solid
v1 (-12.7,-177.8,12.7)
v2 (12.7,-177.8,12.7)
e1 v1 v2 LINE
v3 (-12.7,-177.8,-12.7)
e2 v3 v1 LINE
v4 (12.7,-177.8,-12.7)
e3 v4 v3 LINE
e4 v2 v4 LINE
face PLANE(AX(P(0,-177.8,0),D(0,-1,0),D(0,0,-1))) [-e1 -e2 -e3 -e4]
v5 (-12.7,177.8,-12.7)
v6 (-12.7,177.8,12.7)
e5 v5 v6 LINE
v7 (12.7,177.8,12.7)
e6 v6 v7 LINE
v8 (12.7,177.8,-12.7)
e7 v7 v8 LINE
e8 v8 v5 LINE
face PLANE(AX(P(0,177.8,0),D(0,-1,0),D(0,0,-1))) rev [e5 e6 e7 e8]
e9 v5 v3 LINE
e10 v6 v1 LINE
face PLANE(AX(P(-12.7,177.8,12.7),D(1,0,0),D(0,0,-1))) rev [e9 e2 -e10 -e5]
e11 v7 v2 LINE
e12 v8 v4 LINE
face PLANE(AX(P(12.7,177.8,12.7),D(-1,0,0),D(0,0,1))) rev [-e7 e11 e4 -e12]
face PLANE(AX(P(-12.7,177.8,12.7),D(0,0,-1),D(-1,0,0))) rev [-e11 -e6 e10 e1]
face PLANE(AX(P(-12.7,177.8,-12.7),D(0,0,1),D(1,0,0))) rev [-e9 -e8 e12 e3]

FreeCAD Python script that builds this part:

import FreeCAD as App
import Part
import Sketcher
from FreeCAD import Vector
Q = App.Units.Quantity

doc = App.newDocument("Part")
body = doc.addObject("PartDesign::Body", "Body")

# Sketch on XZ plane
sketch1 = doc.addObject("Sketcher::SketchObject", "Sketch")
body.addObject(sketch1)
sketch1.AttachmentSupport = (doc.XZ_Plane, [""])
sketch1.MapMode = "FlatFace"
sketch1.addGeometry([
    Part.LineSegment(Vector(-13, -13, 0), Vector(-13, 13, 0)),
    Part.LineSegment(Vector(-13, 13, 0), Vector(13, 13, 0)),
    Part.LineSegment(Vector(13, 13, 0), Vector(13, -13, 0)),
    Part.LineSegment(Vector(13, -13, 0), Vector(-13, -13, 0)),
], False)
sketch1.addConstraint([
    Sketcher.Constraint("Coincident", 0, 2, 1, 1),
    Sketcher.Constraint("Coincident", 1, 2, 2, 1),
    Sketcher.Constraint("Coincident", 2, 2, 3, 1),
    Sketcher.Constraint("Coincident", 3, 2, 0, 1),
    Sketcher.Constraint("Vertical", 0),
    Sketcher.Constraint("Horizontal", 1),
    Sketcher.Constraint("Vertical", 2),
    Sketcher.Constraint("Horizontal", 3),
    Sketcher.Constraint("Symmetric", 0, 2, 2, 2, -1, 1),
    Sketcher.Constraint("Equal", 3, 0),
    Sketcher.Constraint("DistanceX", 1, 1, 1, 2, Q("1 in")),
])
pad1 = doc.addObject("PartDesign::Pad", "Pad")
body.addObject(pad1)
pad1.Profile = sketch1
pad1.Length = Q("14 in")
pad1.Midplane = True

doc.recompute()
